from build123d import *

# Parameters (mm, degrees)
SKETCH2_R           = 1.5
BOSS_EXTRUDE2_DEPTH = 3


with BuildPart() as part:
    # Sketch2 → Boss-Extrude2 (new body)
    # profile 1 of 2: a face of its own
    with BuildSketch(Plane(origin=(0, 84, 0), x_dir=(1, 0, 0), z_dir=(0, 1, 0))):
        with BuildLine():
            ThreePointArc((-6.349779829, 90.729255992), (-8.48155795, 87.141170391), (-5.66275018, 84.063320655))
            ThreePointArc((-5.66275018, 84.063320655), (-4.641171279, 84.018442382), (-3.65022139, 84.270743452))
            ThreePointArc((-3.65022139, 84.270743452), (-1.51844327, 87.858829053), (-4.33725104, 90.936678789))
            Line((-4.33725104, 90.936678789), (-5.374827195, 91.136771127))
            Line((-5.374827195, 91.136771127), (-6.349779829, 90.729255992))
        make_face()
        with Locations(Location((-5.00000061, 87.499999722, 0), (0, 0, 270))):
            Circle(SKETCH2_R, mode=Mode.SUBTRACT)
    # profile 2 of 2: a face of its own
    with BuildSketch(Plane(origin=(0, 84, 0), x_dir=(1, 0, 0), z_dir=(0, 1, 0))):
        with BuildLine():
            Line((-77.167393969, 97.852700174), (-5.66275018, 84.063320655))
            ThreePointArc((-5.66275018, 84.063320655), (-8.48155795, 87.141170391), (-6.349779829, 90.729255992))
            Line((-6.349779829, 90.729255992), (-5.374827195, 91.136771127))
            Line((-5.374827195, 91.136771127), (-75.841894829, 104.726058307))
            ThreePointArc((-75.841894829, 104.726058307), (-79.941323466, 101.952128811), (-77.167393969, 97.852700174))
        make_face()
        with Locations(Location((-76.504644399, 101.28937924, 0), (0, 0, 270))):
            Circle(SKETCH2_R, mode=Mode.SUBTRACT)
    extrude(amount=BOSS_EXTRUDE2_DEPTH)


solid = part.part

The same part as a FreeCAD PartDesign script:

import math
import FreeCAD as App
import Part
import Sketcher
Q = App.Units.Quantity

doc = App.newDocument("Part")
body = doc.addObject("PartDesign::Body", "Body")

# Sketch on XZ plane
sketch1 = body.newObject("Sketcher::SketchObject", "Sketch")
sketch1.AttachmentSupport = (doc.getObject("XZ_Plane"), [""])
sketch1.MapMode = "FlatFace"
sketch1.AttachmentOffset = App.Placement(App.Vector(0, 0, -84), App.Rotation())
sketch1.addGeometry([
    Part.ArcOfCircle(Part.Circle(App.Vector(-5, -87.5, 0), App.Vector(0, 0, 1), 3.5), math.radians(67), math.radians(101)),  # 0
    Part.ArcOfCircle(Part.Circle(App.Vector(-5, -87.5, 0), App.Vector(0, 0, 1), 3.5), math.radians(-79), math.radians(67)),  # 1
    Part.LineSegment(App.Vector(-4.3, -90.9, 0), App.Vector(-5.4, -91.1, 0)),  # 2
    Part.LineSegment(App.Vector(-5.4, -91.1, 0), App.Vector(-75.8, -104.7, 0)),  # 3
    Part.ArcOfCircle(Part.Circle(App.Vector(-76.5, -101.3, 0), App.Vector(0, 0, 1), 3.5), math.radians(101), math.radians(281)),  # 4
    Part.LineSegment(App.Vector(-77.2, -97.9, 0), App.Vector(-5.7, -84.1, 0)),  # 5
    Part.Circle(App.Vector(-5, -87.5, 0), App.Vector(0, 0, 1), 1.5),  # 6
    Part.Circle(App.Vector(-76.5, -101.3, 0), App.Vector(0, 0, 1), 1.5),  # 7
], False)
sketch1.addConstraint([
    Sketcher.Constraint("Tangent", 0, 1, 1, 2),
    Sketcher.Constraint("Tangent", 1, 1, 2, 1),
    Sketcher.Constraint("Coincident", 2, 2, 3, 1),
    Sketcher.Constraint("Tangent", 3, 2, 4, 2),
    Sketcher.Constraint("Tangent", 4, 1, 5, 1),
    Sketcher.Constraint("Tangent", 5, 2, 0, 2),
    Sketcher.Constraint("Coincident", 6, 3, 0, 3),
    Sketcher.Constraint("Coincident", 7, 3, 4, 3),
    Sketcher.Constraint("Equal", 0, 1),
    Sketcher.Constraint("Equal", 1, 4),
    Sketcher.Constraint("Equal", 6, 7),
    Sketcher.Constraint("Parallel", 2, 3),
    Sketcher.Constraint("Diameter", 6, Q("3 mm")),
    Sketcher.Constraint("Radius", 0, Q("3.5 mm")),
    Sketcher.Constraint("DistanceX", 0, 3, -1, 1, Q("5.000001 mm")),
    Sketcher.Constraint("DistanceY", 0, 3, -1, 1, Q("87.5 mm")),
    Sketcher.Constraint("DistanceY", 4, 1, -1, 1, Q("97.8527 mm")),
    Sketcher.Constraint("DistanceX", 4, 1, 3, 2, Q("1.325499 mm")),
    Sketcher.Constraint("DistanceX", 0, 1, -1, 1, Q("3.650221 mm")),
    Sketcher.Constraint("DistanceY", 2, 2, -1, 1, Q("91.136771 mm")),
])
pad1 = body.newObject("PartDesign::Pad", "Pad")
pad1.Profile = sketch1
pad1.Length = 3
pad1.Reversed = True

doc.recompute()
